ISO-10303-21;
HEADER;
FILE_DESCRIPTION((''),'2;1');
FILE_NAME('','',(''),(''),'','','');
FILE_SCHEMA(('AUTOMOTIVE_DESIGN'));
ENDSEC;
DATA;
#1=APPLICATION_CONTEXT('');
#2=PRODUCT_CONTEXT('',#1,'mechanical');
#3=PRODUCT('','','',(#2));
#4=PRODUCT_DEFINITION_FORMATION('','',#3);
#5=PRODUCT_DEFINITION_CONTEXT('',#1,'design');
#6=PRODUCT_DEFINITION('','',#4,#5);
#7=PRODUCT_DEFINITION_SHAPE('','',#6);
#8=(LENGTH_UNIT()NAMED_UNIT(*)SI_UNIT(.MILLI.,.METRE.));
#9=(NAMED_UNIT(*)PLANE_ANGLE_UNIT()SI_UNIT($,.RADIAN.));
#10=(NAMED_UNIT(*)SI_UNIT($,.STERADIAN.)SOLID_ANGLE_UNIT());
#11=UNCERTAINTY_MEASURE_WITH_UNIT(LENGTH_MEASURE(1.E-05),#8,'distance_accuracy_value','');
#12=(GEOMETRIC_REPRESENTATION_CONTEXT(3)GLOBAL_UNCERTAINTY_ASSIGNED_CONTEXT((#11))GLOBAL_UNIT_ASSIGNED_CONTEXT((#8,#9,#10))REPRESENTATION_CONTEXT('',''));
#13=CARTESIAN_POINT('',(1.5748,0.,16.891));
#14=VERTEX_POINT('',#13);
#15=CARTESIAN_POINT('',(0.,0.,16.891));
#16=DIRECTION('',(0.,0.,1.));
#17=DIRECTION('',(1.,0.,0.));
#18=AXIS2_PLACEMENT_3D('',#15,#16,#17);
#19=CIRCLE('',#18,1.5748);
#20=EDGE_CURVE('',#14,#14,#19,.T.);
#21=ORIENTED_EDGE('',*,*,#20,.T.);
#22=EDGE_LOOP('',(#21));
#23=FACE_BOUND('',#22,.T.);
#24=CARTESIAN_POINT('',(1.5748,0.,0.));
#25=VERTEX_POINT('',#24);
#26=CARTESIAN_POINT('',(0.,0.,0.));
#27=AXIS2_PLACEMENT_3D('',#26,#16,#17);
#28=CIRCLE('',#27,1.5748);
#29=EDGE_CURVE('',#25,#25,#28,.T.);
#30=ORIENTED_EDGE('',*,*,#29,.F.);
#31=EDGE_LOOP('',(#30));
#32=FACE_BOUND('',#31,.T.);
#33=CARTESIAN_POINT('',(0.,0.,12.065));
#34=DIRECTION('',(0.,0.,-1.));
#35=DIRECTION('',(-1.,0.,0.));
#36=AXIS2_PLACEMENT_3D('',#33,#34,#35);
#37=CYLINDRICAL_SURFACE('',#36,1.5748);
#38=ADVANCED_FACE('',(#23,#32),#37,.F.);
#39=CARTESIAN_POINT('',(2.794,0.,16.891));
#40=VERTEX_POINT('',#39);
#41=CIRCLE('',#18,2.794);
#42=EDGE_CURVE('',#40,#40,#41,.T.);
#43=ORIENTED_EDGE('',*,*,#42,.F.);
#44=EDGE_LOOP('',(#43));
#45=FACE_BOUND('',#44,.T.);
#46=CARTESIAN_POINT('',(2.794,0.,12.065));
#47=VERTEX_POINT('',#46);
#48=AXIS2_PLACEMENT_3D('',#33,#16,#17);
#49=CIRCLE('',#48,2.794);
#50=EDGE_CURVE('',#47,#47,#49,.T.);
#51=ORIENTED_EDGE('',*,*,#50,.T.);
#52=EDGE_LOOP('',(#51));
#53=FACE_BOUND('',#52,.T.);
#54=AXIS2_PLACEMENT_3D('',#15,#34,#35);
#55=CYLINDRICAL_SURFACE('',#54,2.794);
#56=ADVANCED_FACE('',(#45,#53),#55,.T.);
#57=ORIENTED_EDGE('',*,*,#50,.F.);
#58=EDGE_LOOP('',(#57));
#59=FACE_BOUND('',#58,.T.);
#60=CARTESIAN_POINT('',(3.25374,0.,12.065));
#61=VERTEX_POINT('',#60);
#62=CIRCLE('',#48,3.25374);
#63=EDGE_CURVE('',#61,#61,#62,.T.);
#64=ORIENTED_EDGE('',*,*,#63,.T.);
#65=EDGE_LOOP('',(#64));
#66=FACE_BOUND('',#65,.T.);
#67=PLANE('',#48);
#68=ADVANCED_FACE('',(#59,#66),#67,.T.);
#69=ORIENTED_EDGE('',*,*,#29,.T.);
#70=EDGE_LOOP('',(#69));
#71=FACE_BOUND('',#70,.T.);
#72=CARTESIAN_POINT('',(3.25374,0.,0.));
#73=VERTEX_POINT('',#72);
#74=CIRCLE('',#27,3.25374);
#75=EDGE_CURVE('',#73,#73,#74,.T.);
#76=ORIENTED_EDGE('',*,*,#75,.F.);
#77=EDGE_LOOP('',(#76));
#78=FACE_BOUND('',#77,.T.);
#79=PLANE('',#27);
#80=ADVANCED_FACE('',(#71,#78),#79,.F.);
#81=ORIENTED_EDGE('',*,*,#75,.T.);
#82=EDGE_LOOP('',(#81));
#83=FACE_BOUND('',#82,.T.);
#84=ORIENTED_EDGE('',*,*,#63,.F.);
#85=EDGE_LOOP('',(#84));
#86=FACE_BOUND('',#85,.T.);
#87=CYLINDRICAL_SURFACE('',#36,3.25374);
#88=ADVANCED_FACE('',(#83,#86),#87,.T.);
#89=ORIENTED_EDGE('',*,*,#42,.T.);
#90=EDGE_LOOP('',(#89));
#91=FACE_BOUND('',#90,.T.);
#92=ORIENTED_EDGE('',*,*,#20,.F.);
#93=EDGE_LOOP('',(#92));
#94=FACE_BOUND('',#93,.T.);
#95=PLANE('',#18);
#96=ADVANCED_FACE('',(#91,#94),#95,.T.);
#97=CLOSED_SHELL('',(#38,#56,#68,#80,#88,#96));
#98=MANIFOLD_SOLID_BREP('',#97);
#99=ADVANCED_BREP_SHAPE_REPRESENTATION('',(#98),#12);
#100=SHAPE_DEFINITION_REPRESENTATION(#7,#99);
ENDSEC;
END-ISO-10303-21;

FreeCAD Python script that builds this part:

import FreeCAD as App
import Part
import Sketcher

V = App.Vector
Q = App.Units.Quantity

doc = App.newDocument("Part")
params = doc.addObject("Spreadsheet::Sheet", "Params")
for row, (alias, value) in enumerate([
    ("sketch1_diameter", "0.124 in"),
    ("pad1_length", "0.475 in"),
    ("sketch2_diameter", "0.22 in"),
    ("sketch2_diameter2", "0.124 in"),
    ("pad2_length", "0.19 in"),
], start=1):
    params.set(f"A{row}", alias)
    params.set(f"B{row}", "=" + value)
    params.setAlias(f"B{row}", alias)

body = doc.addObject("PartDesign::Body", "Body")

sketch1 = doc.addObject("Sketcher::SketchObject", "Sketch")
body.addObject(sketch1)
sketch1.AttachmentSupport = (doc.XY_Plane, [""])
sketch1.MapMode = "FlatFace"
sketch1.addGeometry(Part.Circle(V(0, 0, 0), V(0, 0, 1), 3.3), False)
sketch1.addGeometry(Part.Circle(V(0, 0, 0), V(0, 0, 1), 1.6), False)
sketch1.addConstraint(Sketcher.Constraint("Coincident", 0, 3, -1, 1))
sketch1.addConstraint(Sketcher.Constraint("Coincident", 1, 3, -1, 1))
sketch1.addConstraint(Sketcher.Constraint("Diameter", 1, Q("0.124 in")))
sketch1.addConstraint(Sketcher.Constraint("Diameter", 0, Q("0.2562 in")))
sketch1.setExpression("Constraints[2]", "Params.sketch1_diameter")
pad1 = doc.addObject("PartDesign::Pad", "Pad")
body.addObject(pad1)
pad1.Profile = sketch1
pad1.setExpression("Length", "Params.pad1_length")

sketch2 = doc.addObject("Sketcher::SketchObject", "Sketch001")
body.addObject(sketch2)
sketch2.AttachmentSupport = (doc.XY_Plane, [""])
sketch2.MapMode = "FlatFace"
sketch2.AttachmentOffset = App.Placement(V(0, 0, 0.475 * 25.4), App.Rotation())
sketch2.addGeometry(Part.Circle(V(0, 0, 0), V(0, 0, 1), 2.8), False)
sketch2.addGeometry(Part.Circle(V(0, 0, 0), V(0, 0, 1), 1.6), False)
sketch2.addConstraint(Sketcher.Constraint("Coincident", 0, 3, -1, 1))
sketch2.addConstraint(Sketcher.Constraint("Coincident", 1, 3, -1, 1))
sketch2.addConstraint(Sketcher.Constraint("Diameter", 0, Q("0.22 in")))
sketch2.addConstraint(Sketcher.Constraint("Diameter", 1, Q("0.124 in")))
sketch2.setExpression("Constraints[2]", "Params.sketch2_diameter")
sketch2.setExpression("Constraints[3]", "Params.sketch2_diameter2")
pad2 = doc.addObject("PartDesign::Pad", "Pad001")
body.addObject(pad2)
pad2.Profile = sketch2
pad2.setExpression("Length", "Params.pad2_length")

doc.recompute()
